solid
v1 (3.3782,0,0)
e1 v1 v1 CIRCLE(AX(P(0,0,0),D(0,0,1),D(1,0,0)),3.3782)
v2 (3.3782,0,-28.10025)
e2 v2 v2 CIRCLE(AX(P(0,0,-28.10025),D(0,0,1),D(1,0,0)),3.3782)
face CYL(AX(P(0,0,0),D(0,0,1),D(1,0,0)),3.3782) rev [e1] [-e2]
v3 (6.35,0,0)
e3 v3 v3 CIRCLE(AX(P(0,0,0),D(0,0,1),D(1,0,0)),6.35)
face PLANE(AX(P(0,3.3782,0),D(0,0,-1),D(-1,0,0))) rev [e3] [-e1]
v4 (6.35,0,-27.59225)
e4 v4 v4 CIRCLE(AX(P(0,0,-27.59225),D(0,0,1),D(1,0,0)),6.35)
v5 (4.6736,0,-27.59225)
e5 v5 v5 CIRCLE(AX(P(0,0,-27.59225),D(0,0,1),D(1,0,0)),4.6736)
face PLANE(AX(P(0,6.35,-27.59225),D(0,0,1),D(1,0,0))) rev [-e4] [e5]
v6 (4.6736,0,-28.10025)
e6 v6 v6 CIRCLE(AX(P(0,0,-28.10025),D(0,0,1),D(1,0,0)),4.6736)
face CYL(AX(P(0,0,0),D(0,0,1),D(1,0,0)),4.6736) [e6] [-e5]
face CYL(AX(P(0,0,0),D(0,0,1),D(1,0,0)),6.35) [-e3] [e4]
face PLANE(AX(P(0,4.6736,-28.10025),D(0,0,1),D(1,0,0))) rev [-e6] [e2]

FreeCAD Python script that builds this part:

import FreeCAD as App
import Part
import Sketcher
Q = App.Units.Quantity

doc = App.newDocument("Part")
body = doc.addObject("PartDesign::Body", "Body")

sketch1 = body.newObject("Sketcher::SketchObject", "Sketch")
sketch1.AttachmentSupport = (doc.getObject("YZ_Plane"), [""])
sketch1.MapMode = "FlatFace"
sketch1.addGeometry(Part.LineSegment(App.Vector(6.3, 0, 0), App.Vector(3.4, 0, 0)), False)
sketch1.addGeometry(Part.LineSegment(App.Vector(3.4, 0, 0), App.Vector(3.4, -28.1, 0)), False)
sketch1.addGeometry(Part.LineSegment(App.Vector(3.4, -28.1, 0), App.Vector(4.7, -28.1, 0)), False)
sketch1.addGeometry(Part.LineSegment(App.Vector(4.7, -28.1, 0), App.Vector(4.7, -27.6, 0)), False)
sketch1.addGeometry(Part.LineSegment(App.Vector(4.7, -27.6, 0), App.Vector(6.3, -27.6, 0)), False)
sketch1.addGeometry(Part.LineSegment(App.Vector(6.3, -27.6, 0), App.Vector(6.3, 0, 0)), False)
sketch1.addConstraint(Sketcher.Constraint("Coincident", 0, 2, 1, 1))
sketch1.addConstraint(Sketcher.Constraint("Coincident", 1, 2, 2, 1))
sketch1.addConstraint(Sketcher.Constraint("Coincident", 2, 2, 3, 1))
sketch1.addConstraint(Sketcher.Constraint("Coincident", 3, 2, 4, 1))
sketch1.addConstraint(Sketcher.Constraint("Coincident", 4, 2, 5, 1))
sketch1.addConstraint(Sketcher.Constraint("Coincident", 5, 2, 0, 1))
sketch1.addConstraint(Sketcher.Constraint("Horizontal", 0))
sketch1.addConstraint(Sketcher.Constraint("Vertical", 1))
sketch1.addConstraint(Sketcher.Constraint("Horizontal", 2))
sketch1.addConstraint(Sketcher.Constraint("Vertical", 3))
sketch1.addConstraint(Sketcher.Constraint("Horizontal", 4))
sketch1.addConstraint(Sketcher.Constraint("Vertical", 5))
sketch1.addConstraint(Sketcher.Constraint("PointOnObject", 0, 2, -1))
sketch1.addConstraint(Sketcher.Constraint("DistanceY", 3, 1, 3, 2, Q("0.02 in")))
sketch1.addConstraint(Sketcher.Constraint("DistanceX", 0, 2, 0, 1, Q("0.117 in")))
sketch1.addConstraint(Sketcher.Constraint("DistanceX", 2, 1, 2, 2, Q("0.051 in")))
sketch1.addConstraint(Sketcher.Constraint("DistanceX", -1, 1, 4, 2, Q("0.25 in")))
sketch1.addConstraint(Sketcher.Constraint("DistanceY", 1, 2, 1, 1, 28.10025))
revolution = body.newObject("PartDesign::Revolution", "Revolution")
revolution.Profile = sketch1
revolution.ReferenceAxis = (sketch1, ["V_Axis"])
revolution.Angle = 360

doc.recompute()
